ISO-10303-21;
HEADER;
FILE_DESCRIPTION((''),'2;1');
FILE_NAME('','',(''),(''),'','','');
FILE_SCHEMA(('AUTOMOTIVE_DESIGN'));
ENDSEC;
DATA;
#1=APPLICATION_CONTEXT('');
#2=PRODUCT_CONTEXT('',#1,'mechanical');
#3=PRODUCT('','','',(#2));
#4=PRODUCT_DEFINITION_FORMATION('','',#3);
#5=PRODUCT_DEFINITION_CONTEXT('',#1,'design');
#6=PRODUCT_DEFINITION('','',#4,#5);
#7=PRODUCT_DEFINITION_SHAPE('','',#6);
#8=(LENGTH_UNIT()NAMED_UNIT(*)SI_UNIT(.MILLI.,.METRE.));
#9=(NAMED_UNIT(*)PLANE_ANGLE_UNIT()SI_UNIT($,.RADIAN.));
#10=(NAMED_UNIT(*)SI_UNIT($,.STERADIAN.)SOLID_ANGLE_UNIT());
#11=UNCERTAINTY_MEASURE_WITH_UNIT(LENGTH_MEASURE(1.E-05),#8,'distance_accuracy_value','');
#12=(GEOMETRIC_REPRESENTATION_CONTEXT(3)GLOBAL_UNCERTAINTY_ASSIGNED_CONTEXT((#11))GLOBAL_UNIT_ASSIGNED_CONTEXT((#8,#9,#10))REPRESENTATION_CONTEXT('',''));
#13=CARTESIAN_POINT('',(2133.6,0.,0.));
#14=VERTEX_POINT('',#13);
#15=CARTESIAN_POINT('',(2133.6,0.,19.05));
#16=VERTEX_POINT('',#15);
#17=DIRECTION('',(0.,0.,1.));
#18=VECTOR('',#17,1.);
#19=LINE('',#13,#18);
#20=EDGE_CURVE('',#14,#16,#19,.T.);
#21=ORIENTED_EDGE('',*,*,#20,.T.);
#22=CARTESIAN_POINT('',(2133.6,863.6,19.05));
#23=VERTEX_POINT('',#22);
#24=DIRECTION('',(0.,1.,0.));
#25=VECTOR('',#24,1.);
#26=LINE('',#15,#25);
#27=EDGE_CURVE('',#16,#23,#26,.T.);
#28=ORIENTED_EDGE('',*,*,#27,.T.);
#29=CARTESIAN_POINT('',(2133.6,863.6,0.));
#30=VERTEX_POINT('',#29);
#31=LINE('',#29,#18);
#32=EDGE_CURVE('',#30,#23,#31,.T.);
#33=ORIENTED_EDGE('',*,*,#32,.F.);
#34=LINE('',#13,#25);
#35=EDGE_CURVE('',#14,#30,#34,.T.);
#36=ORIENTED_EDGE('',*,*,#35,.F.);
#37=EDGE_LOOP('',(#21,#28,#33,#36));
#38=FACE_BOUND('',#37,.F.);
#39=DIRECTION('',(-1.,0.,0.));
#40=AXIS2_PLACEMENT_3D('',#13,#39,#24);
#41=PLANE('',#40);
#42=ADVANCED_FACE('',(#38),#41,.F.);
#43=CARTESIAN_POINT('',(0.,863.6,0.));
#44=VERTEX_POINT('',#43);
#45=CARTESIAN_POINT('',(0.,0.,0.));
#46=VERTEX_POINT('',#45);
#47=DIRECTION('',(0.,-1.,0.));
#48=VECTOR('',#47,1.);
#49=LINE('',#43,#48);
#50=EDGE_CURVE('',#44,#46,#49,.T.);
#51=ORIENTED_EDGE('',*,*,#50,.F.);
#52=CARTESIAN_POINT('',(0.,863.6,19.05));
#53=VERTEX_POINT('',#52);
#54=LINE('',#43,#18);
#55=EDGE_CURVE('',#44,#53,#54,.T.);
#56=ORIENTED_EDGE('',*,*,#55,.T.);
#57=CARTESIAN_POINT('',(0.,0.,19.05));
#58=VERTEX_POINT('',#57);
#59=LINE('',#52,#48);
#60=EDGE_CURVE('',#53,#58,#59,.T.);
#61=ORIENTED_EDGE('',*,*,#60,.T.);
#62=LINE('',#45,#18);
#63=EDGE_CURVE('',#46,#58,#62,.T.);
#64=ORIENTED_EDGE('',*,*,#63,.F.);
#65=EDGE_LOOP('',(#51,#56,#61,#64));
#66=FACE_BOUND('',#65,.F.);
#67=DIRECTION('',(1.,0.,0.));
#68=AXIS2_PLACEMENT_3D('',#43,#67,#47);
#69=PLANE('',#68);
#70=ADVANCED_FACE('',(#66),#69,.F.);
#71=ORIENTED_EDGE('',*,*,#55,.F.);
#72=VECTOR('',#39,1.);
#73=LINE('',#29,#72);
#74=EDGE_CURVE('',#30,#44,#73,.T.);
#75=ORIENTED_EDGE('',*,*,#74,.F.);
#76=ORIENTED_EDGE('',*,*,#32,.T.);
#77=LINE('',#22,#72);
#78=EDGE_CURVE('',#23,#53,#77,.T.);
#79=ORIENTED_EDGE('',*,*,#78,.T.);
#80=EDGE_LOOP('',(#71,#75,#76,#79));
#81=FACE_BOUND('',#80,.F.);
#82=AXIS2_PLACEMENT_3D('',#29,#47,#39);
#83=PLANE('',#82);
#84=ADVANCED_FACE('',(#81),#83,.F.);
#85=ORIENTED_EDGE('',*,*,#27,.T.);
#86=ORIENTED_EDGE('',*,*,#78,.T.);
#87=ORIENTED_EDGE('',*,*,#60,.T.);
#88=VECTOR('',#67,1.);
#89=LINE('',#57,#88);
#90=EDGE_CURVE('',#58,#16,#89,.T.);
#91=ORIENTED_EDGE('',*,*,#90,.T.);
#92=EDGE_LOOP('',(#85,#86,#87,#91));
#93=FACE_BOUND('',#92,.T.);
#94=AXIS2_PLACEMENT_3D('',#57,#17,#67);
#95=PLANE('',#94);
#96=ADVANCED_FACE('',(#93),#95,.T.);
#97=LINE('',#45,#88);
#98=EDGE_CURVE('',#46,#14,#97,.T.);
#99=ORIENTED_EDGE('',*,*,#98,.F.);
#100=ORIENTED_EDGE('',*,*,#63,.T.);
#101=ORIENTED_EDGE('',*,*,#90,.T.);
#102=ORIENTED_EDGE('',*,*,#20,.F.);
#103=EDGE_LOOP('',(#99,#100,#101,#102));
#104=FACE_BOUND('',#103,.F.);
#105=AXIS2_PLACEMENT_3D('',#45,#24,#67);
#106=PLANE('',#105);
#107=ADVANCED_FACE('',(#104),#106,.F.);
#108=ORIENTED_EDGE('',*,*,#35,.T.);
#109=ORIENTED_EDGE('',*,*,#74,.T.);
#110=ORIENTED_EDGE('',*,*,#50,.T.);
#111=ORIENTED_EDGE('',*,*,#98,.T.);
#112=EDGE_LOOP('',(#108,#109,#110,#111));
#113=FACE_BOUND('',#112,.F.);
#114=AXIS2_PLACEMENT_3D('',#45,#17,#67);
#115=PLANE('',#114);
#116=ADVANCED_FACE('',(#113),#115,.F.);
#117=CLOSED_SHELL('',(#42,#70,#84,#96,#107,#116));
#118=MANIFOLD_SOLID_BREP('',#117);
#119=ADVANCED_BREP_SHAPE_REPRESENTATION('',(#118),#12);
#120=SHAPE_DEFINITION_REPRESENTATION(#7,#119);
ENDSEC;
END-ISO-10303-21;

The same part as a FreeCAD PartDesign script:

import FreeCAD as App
import Part
import Sketcher
from FreeCAD import Vector
Q = App.Units.Quantity


def add_polygon(sketch, points):
    """Adds a closed chain of lines whose ends are joined by coincident constraints."""
    first, n = sketch.GeometryCount, len(points)
    for a, b in zip(points, points[1:] + points[:1]):
        sketch.addGeometry(Part.LineSegment(App.Vector(*a, 0), App.Vector(*b, 0)), False)
    for i in range(n):
        sketch.addConstraint(Sketcher.Constraint("Coincident", first + i, 2, first + (i + 1) % n, 1))

doc = App.newDocument("Part")
body = doc.addObject("PartDesign::Body", "Body")

sketch1 = doc.addObject("Sketcher::SketchObject", "Sketch")
body.addObject(sketch1)
sketch1.AttachmentSupport = (doc.XY_Plane, [""])
sketch1.MapMode = "FlatFace"
add_polygon(sketch1, [(0, 864), (0, 0), (2134, 0), (2134, 864)])
sketch1.addConstraint([
    Sketcher.Constraint("Vertical", 0),
    Sketcher.Constraint("Horizontal", 1),
    Sketcher.Constraint("Vertical", 2),
    Sketcher.Constraint("Horizontal", 3),
    Sketcher.Constraint("Coincident", 0, 2, -1, 1),
    Sketcher.Constraint("DistanceX", 1, 1, 1, 2, Q("84 in")),
    Sketcher.Constraint("DistanceY", 0, 2, 0, 1, Q("34 in")),
])
pad1 = doc.addObject("PartDesign::Pad", "Pad")
body.addObject(pad1)
pad1.Profile = sketch1
pad1.Length = Q("0.75 in")

doc.recompute()
